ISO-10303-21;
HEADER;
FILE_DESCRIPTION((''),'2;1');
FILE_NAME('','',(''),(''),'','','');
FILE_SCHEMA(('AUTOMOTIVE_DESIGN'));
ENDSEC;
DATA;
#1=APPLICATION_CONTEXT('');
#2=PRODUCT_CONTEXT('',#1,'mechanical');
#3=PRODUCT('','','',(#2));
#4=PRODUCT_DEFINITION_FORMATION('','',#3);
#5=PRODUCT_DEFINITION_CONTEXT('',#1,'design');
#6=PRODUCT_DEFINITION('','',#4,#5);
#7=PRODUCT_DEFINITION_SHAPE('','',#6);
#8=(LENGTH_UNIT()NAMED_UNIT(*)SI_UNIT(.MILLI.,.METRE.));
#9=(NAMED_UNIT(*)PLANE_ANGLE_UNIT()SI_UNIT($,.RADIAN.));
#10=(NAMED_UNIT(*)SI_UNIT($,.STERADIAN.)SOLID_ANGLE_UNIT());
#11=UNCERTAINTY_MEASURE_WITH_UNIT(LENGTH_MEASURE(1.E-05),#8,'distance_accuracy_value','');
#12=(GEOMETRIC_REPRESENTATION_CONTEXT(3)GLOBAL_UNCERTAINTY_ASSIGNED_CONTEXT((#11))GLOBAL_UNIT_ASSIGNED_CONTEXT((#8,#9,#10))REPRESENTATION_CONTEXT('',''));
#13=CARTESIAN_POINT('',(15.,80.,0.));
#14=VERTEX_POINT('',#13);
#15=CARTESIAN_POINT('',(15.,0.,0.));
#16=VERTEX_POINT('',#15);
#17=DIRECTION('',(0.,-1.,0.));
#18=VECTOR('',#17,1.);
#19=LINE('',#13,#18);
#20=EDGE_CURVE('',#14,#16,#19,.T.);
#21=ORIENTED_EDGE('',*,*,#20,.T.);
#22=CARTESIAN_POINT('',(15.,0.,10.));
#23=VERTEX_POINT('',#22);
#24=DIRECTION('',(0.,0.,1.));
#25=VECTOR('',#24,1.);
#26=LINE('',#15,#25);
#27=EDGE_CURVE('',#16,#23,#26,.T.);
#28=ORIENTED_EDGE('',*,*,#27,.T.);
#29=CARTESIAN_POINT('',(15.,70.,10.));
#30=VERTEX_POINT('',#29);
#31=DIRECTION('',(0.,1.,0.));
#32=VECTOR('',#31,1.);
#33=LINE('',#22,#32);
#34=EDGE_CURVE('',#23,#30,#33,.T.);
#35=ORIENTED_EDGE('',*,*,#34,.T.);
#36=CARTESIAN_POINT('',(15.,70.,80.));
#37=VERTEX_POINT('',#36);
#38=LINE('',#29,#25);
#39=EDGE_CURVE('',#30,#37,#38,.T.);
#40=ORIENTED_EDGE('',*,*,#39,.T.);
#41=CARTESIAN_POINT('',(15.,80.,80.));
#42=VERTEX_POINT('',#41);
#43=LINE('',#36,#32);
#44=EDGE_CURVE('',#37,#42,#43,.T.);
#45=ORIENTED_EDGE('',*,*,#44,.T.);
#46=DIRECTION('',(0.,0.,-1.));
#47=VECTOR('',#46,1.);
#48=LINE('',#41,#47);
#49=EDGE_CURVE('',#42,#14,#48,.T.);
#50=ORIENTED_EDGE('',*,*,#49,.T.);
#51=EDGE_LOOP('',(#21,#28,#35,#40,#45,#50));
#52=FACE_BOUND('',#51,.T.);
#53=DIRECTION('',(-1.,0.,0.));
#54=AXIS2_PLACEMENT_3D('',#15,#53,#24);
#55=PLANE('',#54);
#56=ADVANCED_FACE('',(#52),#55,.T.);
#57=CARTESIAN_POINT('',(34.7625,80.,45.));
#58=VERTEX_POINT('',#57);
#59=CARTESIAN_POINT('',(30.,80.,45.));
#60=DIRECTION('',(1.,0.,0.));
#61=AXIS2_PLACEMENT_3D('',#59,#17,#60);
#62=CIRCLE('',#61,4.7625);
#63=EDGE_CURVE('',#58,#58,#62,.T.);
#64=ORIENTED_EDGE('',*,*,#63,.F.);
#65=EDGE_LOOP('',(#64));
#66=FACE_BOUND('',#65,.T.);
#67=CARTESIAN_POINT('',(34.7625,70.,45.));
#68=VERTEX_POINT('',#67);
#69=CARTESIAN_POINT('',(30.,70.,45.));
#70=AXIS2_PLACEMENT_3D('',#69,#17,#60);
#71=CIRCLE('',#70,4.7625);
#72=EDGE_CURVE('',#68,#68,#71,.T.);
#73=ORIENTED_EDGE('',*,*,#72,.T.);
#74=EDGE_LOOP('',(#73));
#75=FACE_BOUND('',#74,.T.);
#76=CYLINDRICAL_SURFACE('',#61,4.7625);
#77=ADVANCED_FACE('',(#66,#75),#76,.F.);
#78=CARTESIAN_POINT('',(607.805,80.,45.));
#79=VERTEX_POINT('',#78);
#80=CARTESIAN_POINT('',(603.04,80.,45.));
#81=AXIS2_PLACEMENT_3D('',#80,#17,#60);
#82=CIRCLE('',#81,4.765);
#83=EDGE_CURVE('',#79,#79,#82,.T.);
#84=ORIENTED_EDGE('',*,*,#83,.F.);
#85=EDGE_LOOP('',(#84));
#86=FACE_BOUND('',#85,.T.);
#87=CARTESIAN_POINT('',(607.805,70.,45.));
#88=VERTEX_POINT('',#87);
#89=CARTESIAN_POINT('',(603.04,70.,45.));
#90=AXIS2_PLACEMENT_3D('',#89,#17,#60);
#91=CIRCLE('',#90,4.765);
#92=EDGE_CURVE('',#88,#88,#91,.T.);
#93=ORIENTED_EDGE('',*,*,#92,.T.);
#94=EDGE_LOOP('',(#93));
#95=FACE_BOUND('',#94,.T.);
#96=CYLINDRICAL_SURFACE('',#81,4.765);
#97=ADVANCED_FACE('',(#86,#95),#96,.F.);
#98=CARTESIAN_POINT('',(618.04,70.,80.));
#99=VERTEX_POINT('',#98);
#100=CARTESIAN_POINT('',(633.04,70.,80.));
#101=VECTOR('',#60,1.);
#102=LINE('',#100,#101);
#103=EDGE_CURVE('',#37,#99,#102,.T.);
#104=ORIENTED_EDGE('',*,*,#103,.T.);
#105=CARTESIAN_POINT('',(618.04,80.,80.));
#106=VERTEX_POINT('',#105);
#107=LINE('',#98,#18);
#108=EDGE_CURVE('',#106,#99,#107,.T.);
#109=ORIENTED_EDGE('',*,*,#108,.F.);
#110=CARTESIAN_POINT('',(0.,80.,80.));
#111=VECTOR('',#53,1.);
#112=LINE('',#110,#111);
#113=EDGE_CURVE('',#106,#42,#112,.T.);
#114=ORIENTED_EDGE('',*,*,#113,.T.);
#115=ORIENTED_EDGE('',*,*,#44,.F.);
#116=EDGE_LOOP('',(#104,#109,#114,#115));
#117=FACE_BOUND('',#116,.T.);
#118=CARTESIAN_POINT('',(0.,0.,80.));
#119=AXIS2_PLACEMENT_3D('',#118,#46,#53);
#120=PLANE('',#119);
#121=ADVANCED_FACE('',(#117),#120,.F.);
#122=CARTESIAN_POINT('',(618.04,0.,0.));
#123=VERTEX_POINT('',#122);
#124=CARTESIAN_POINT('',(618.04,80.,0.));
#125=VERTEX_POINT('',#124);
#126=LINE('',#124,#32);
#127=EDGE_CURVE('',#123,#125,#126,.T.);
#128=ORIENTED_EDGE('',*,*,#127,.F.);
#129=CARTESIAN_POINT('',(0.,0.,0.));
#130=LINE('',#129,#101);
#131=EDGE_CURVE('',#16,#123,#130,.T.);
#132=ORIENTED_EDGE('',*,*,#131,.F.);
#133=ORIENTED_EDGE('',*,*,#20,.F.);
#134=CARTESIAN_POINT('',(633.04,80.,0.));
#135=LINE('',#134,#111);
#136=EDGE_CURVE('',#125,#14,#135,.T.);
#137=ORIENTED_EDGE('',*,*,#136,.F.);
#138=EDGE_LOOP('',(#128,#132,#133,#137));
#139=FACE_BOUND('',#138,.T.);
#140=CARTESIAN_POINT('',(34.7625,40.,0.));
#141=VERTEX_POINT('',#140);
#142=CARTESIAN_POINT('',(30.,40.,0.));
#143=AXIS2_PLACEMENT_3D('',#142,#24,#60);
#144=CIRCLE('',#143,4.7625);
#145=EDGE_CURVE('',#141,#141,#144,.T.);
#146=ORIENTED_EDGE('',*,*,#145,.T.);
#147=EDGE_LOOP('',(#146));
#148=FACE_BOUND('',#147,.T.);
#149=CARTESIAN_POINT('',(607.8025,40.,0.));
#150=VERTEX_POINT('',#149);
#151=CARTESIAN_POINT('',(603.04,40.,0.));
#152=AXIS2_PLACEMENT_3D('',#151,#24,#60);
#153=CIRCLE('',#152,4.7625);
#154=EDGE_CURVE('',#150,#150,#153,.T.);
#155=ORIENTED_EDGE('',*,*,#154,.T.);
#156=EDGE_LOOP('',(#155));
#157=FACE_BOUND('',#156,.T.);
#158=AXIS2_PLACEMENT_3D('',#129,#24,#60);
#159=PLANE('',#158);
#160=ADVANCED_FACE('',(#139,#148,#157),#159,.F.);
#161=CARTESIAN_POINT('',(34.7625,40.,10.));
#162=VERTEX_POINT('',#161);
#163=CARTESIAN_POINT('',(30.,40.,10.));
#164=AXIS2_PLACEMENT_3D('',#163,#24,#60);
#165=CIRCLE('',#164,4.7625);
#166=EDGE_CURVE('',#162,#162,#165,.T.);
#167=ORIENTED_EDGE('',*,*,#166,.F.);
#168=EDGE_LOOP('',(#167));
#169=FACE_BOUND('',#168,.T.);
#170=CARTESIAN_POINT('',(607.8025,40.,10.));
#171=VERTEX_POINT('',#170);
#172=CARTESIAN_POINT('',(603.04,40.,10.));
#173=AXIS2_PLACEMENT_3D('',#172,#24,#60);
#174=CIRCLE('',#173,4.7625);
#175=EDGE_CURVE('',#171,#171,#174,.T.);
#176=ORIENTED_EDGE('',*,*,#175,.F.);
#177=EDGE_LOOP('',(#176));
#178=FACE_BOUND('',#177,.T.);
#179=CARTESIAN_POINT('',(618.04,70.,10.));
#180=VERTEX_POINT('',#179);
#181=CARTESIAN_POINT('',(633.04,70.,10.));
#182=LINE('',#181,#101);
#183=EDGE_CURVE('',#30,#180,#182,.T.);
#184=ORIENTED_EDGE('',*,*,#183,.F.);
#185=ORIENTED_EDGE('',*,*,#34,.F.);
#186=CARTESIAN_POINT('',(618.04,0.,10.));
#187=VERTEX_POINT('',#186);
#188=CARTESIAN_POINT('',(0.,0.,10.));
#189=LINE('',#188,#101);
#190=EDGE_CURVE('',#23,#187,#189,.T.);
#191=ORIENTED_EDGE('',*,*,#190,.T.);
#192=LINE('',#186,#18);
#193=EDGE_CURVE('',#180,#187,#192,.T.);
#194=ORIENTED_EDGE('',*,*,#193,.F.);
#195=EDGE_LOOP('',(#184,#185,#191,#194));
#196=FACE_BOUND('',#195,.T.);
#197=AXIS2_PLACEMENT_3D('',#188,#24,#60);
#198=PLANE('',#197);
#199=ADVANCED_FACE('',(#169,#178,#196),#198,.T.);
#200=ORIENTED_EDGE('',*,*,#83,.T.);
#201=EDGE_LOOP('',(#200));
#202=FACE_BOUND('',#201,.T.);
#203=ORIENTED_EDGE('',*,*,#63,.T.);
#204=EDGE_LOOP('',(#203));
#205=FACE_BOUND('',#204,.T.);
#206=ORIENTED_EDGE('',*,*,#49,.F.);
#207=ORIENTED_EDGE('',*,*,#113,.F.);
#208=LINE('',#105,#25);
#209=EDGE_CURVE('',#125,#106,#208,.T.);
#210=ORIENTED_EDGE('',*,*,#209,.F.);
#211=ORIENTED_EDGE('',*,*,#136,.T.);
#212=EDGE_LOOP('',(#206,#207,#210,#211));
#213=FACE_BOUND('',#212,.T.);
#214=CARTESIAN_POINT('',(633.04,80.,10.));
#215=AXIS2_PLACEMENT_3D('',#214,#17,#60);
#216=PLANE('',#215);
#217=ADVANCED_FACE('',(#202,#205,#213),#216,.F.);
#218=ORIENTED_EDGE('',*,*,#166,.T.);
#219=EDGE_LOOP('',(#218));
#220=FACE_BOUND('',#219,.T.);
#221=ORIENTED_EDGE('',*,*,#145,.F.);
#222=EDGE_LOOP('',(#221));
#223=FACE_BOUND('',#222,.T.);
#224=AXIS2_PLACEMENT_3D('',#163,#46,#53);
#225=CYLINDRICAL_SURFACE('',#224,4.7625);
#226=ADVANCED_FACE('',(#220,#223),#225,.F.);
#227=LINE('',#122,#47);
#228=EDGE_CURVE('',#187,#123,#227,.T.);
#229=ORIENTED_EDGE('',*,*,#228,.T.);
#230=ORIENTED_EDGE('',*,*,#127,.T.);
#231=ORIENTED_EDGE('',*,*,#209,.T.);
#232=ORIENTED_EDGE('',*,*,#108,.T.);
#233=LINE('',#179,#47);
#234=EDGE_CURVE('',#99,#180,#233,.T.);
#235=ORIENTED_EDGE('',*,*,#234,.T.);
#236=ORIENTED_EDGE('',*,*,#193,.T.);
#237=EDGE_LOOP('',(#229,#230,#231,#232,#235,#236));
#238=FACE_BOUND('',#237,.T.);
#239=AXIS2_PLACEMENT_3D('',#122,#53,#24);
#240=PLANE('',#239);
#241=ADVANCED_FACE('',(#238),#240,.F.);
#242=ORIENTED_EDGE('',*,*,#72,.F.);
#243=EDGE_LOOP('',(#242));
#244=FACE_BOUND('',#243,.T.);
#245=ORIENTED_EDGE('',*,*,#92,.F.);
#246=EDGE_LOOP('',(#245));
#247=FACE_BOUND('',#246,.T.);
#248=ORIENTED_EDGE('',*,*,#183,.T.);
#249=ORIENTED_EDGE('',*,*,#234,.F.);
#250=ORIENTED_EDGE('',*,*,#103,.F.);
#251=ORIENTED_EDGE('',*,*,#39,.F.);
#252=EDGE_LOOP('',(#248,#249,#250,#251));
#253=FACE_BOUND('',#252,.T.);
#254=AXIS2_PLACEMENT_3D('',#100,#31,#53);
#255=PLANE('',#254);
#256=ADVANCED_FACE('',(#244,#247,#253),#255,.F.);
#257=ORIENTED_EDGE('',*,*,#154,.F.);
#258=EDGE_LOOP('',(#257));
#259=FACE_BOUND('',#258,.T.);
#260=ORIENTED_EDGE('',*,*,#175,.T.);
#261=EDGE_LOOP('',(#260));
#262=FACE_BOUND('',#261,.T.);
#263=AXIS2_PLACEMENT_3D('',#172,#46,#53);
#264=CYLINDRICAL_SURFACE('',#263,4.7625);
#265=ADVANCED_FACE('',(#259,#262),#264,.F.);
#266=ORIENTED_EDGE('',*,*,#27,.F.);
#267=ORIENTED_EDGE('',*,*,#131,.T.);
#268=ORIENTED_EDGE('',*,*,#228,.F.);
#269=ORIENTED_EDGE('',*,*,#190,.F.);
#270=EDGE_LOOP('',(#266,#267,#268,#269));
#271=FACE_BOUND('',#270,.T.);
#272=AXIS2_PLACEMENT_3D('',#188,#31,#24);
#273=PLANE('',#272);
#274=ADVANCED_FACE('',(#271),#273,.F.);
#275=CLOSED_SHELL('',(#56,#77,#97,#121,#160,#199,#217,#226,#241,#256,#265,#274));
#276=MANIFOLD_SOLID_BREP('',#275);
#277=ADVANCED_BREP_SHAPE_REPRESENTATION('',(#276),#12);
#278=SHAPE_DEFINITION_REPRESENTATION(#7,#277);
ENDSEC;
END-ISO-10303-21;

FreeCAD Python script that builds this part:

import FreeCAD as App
import Part
import Sketcher


def add_polygon(sketch, points):
    """Adds a closed chain of lines whose ends are joined by coincident constraints."""
    first, n = sketch.GeometryCount, len(points)
    for a, b in zip(points, points[1:] + points[:1]):
        sketch.addGeometry(Part.LineSegment(App.Vector(*a, 0), App.Vector(*b, 0)), False)
    for i in range(n):
        sketch.addConstraint(Sketcher.Constraint("Coincident", first + i, 2, first + (i + 1) % n, 1))

doc = App.newDocument("Part")
body = doc.addObject("PartDesign::Body", "Body")

# Sketch on XY plane
sketch1 = body.newObject("Sketcher::SketchObject", "Sketch")
sketch1.AttachmentSupport = (doc.getObject("XY_Plane"), [""])
sketch1.MapMode = "FlatFace"
add_polygon(sketch1, [(0, 80), (0, 0), (633.04, 0), (633.04, 80)])  # lines 0-3
sketch1.addGeometry(Part.Circle(App.Vector(30, 40, 0), App.Vector(0, 0, 1), 4.7625), False)  # 4
sketch1.addGeometry(Part.Circle(App.Vector(603.04, 40, 0), App.Vector(0, 0, 1), 4.7625), False)  # 5
sketch1.addConstraint([
    Sketcher.Constraint("Vertical", 0),
    Sketcher.Constraint("Horizontal", 1),
    Sketcher.Constraint("Vertical", 2),
    Sketcher.Constraint("Horizontal", 3),
    Sketcher.Constraint("Coincident", 0, 2, -1, 1),
    Sketcher.Constraint("Equal", 4, 5),
    Sketcher.Constraint("Horizontal", 4, 3, 5, 3),
    Sketcher.Constraint("DistanceY", 0, 2, 0, 1, 80.0),
    Sketcher.Constraint("Diameter", 4, 9.525),
    Sketcher.Constraint("DistanceX", -1, 1, 4, 3, 30.0),
    Sketcher.Constraint("DistanceY", -1, 1, 4, 3, 40.0),
    Sketcher.Constraint("DistanceX", 5, 3, 1, 2, 30.0),
    Sketcher.Constraint("DistanceX", 1, 1, 1, 2, 633.04),
])
pad1 = body.newObject("PartDesign::Pad", "Pad")
pad1.Profile = sketch1
pad1.Length = 10

# Sketch on XY plane
sketch2 = body.newObject("Sketcher::SketchObject", "Sketch001")
sketch2.AttachmentSupport = (doc.getObject("XY_Plane"), [""])
sketch2.MapMode = "FlatFace"
sketch2.AttachmentOffset = App.Placement(App.Vector(0, 0, 10), App.Rotation())
add_polygon(sketch2, [(0, 80), (0, 70), (633.04, 70), (633.04, 80)])  # lines 0-3
sketch2.addConstraint([
    Sketcher.Constraint("Vertical", 0),
    Sketcher.Constraint("Horizontal", 1),
    Sketcher.Constraint("Vertical", 2),
    Sketcher.Constraint("Horizontal", 3),
    Sketcher.Constraint("PointOnObject", 0, 2, -2),
    Sketcher.Constraint("DistanceY", 0, 2, 0, 1, 10.0),
    Sketcher.Constraint("DistanceY", -1, 1, 0, 2, 70.0),
    Sketcher.Constraint("DistanceX", 1, 1, 1, 2, 633.04),
])
pad2 = body.newObject("PartDesign::Pad", "Pad001")
pad2.Profile = sketch2
pad2.Length = 70

# Sketch on XZ plane
sketch3 = body.newObject("Sketcher::SketchObject", "Sketch002")
sketch3.AttachmentSupport = (doc.getObject("XZ_Plane"), [""])
sketch3.MapMode = "FlatFace"
sketch3.AttachmentOffset = App.Placement(App.Vector(0, 0, -70), App.Rotation())
sketch3.addGeometry([
    Part.Circle(App.Vector(30, 45, 0), App.Vector(0, 0, 1), 4.7625),
    Part.Circle(App.Vector(603.04, 45, 0), App.Vector(0, 0, 1), 4.765),
], False)
sketch3.addConstraint([
    Sketcher.Constraint("Horizontal", 0, 3, 1, 3),
    Sketcher.Constraint("Diameter", 1, 9.53),
    Sketcher.Constraint("Diameter", 0, 9.525),
    Sketcher.Constraint("DistanceX", -1, 1, 0, 3, 30.0),
    Sketcher.Constraint("DistanceY", -1, 1, 0, 3, 45.0),
    Sketcher.Constraint("DistanceX", -1, 1, 1, 3, 603.04),
])
pocket1 = body.newObject("PartDesign::Pocket", "Pocket")
pocket1.Profile = sketch3
pocket1.Type = "ThroughAll"

# Sketch on YZ plane
sketch4 = body.newObject("Sketcher::SketchObject", "Sketch003")
sketch4.AttachmentSupport = (doc.getObject("YZ_Plane"), [""])
sketch4.MapMode = "FlatFace"
sketch4.AttachmentOffset = App.Placement(App.Vector(0, 0, 633.04), App.Rotation())
add_polygon(sketch4, [(80, 80), (70, 80), (70, 10), (0, 10), (0, 0), (80, 0)])  # lines 0-5
sketch4.addConstraint([
    Sketcher.Constraint("Horizontal", 0),
    Sketcher.Constraint("Vertical", 1),
    Sketcher.Constraint("Horizontal", 2),
    Sketcher.Constraint("Vertical", 3),
    Sketcher.Constraint("Horizontal", 4),
    Sketcher.Constraint("Vertical", 5),
    Sketcher.Constraint("Coincident", 3, 2, -1, 1),
    Sketcher.Constraint("Equal", 2, 1),
    Sketcher.Constraint("Equal", 0, 3),
    Sketcher.Constraint("DistanceX", 0, 2, 0, 1, 10.0),
    Sketcher.Constraint("DistanceX", 2, 2, 2, 1, 70.0),
])
pocket2 = body.newObject("PartDesign::Pocket", "Pocket001")
pocket2.Profile = sketch4
pocket2.Length = 15

# Sketch on YZ plane
sketch5 = body.newObject("Sketcher::SketchObject", "Sketch004")
sketch5.AttachmentSupport = (doc.getObject("YZ_Plane"), [""])
sketch5.MapMode = "FlatFace"
add_polygon(sketch5, [(70, 80), (80, 80), (80, 0), (0, 0), (0, 10), (70, 10)])  # lines 0-5
sketch5.addConstraint([
    Sketcher.Constraint("Horizontal", 0),
    Sketcher.Constraint("Vertical", 1),
    Sketcher.Constraint("Horizontal", 2),
    Sketcher.Constraint("Vertical", 3),
    Sketcher.Constraint("Horizontal", 4),
    Sketcher.Constraint("Vertical", 5),
    Sketcher.Constraint("Coincident", 2, 2, -1, 1),
    Sketcher.Constraint("Equal", 2, 1),
    Sketcher.Constraint("Equal", 0, 3),
    Sketcher.Constraint("DistanceX", 0, 1, 0, 2, 10.0),
    Sketcher.Constraint("DistanceX", 2, 2, 2, 1, 80.0),
])
pocket3 = body.newObject("PartDesign::Pocket", "Pocket002")
pocket3.Profile = sketch5
pocket3.Length = 15
pocket3.Reversed = True

doc.recompute()
